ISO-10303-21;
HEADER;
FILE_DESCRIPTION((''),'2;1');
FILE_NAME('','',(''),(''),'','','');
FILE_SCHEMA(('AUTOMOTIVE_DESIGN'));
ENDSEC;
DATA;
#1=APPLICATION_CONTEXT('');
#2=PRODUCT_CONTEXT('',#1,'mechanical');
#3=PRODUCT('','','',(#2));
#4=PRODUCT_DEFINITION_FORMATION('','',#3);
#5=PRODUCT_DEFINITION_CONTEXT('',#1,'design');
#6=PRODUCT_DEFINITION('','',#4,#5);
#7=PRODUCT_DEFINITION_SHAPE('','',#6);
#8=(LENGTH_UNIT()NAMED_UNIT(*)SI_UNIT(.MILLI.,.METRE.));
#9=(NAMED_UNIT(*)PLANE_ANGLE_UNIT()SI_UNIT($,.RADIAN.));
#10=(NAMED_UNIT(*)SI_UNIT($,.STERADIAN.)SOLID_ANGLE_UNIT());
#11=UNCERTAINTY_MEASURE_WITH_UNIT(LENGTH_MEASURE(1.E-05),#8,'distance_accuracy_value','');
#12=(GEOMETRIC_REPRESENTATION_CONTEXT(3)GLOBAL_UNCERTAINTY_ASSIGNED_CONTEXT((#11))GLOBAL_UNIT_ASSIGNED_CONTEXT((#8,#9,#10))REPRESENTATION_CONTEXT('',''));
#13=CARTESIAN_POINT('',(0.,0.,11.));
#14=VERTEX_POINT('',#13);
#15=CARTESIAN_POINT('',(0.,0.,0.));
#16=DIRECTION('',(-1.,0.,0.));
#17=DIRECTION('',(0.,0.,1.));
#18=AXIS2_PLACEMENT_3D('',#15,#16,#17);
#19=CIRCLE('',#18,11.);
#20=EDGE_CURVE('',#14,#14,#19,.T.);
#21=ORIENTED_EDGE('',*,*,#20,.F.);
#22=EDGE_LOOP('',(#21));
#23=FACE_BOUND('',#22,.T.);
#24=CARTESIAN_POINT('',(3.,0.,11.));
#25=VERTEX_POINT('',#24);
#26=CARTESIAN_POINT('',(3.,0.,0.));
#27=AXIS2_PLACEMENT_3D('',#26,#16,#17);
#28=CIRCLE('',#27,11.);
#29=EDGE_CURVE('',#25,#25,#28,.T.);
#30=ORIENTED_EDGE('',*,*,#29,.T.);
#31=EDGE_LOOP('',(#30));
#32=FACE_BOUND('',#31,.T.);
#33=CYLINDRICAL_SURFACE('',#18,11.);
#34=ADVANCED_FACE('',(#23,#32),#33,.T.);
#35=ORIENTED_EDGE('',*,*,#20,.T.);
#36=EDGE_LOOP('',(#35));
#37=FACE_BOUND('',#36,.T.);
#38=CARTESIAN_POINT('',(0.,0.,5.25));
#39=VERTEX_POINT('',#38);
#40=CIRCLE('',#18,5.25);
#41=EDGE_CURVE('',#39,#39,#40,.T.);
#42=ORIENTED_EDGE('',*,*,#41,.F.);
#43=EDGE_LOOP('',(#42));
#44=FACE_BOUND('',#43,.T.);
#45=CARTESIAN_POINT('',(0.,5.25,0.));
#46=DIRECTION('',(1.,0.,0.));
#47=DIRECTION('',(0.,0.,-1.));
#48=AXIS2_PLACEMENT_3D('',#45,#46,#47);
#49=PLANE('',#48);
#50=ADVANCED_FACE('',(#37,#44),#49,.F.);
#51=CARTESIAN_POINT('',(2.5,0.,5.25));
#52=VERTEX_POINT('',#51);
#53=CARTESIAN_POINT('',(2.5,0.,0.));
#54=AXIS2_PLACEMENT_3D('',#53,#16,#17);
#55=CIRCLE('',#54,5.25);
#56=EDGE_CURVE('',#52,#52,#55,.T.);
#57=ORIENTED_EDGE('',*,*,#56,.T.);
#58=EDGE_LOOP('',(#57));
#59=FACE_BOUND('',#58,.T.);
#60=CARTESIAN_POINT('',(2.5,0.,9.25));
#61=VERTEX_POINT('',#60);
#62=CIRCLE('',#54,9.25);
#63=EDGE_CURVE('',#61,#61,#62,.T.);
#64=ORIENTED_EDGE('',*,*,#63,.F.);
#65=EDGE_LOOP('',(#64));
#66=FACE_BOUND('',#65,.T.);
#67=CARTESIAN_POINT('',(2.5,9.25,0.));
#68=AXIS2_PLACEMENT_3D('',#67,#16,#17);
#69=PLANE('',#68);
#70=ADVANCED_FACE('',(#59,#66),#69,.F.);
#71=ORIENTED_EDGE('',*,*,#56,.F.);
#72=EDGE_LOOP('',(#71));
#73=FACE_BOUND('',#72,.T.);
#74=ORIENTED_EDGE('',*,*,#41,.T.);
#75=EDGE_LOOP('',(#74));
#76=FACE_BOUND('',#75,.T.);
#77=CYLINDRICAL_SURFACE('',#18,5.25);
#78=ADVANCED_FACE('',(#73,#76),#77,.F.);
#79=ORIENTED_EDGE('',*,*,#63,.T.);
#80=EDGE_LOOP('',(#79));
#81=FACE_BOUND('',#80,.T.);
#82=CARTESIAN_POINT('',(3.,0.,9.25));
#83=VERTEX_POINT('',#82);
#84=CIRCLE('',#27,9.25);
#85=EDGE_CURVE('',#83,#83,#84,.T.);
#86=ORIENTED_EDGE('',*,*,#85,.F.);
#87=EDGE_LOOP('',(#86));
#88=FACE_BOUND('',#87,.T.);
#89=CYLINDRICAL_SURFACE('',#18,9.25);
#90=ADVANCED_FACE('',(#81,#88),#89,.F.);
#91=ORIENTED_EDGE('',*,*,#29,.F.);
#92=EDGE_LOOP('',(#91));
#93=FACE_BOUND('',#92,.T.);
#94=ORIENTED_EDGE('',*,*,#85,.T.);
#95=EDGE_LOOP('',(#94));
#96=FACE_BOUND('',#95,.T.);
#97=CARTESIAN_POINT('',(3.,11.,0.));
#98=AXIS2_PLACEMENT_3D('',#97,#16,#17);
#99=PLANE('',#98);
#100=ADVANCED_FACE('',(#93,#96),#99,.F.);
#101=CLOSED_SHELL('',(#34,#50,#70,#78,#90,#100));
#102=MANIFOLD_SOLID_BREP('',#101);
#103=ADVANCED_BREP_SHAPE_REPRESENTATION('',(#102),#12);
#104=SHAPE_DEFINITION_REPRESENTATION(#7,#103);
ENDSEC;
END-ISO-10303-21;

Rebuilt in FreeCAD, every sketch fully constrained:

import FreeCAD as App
import Part
import Sketcher

doc = App.newDocument("Part")
body = doc.addObject("PartDesign::Body", "Body")

# Sketch on XY plane
sketch1 = body.newObject("Sketcher::SketchObject", "Sketch")
sketch1.AttachmentSupport = (doc.getObject("XY_Plane"), [""])
sketch1.MapMode = "FlatFace"
sketch1.addGeometry([
    Part.LineSegment(App.Vector(0, 11, 0), App.Vector(0, 5.2, 0)),  # 0
    Part.LineSegment(App.Vector(0, 5.2, 0), App.Vector(2.5, 5.2, 0)),  # 1
    Part.LineSegment(App.Vector(2.5, 5.2, 0), App.Vector(2.5, 9.2, 0)),  # 2
    Part.LineSegment(App.Vector(2.5, 9.2, 0), App.Vector(3, 9.2, 0)),  # 3
    Part.LineSegment(App.Vector(3, 9.2, 0), App.Vector(3, 11, 0)),  # 4
    Part.LineSegment(App.Vector(3, 11, 0), App.Vector(0, 11, 0)),  # 5
], False)
sketch1.addConstraint([
    Sketcher.Constraint("Coincident", 0, 2, 1, 1),
    Sketcher.Constraint("Coincident", 1, 2, 2, 1),
    Sketcher.Constraint("Coincident", 2, 2, 3, 1),
    Sketcher.Constraint("Coincident", 3, 2, 4, 1),
    Sketcher.Constraint("Coincident", 4, 2, 5, 1),
    Sketcher.Constraint("Coincident", 5, 2, 0, 1),
    Sketcher.Constraint("Vertical", 0),
    Sketcher.Constraint("Horizontal", 1),
    Sketcher.Constraint("Vertical", 2),
    Sketcher.Constraint("Horizontal", 3),
    Sketcher.Constraint("Vertical", 4),
    Sketcher.Constraint("Horizontal", 5),
    Sketcher.Constraint("PointOnObject", 0, 2, -2),
    Sketcher.Constraint("DistanceX", 5, 2, 5, 1, 3.0),
    Sketcher.Constraint("DistanceY", 2, 1, 2, 2, 4.0),
    Sketcher.Constraint("DistanceX", 1, 1, 1, 2, 2.5),
    Sketcher.Constraint("DistanceY", -1, 1, 4, 2, 11.0),
    Sketcher.Constraint("DistanceY", 0, 2, 0, 1, 5.75),
])
revolution = body.newObject("PartDesign::Revolution", "Revolution")
revolution.Profile = sketch1
revolution.ReferenceAxis = (sketch1, ["H_Axis"])
revolution.Angle = 360

doc.recompute()
